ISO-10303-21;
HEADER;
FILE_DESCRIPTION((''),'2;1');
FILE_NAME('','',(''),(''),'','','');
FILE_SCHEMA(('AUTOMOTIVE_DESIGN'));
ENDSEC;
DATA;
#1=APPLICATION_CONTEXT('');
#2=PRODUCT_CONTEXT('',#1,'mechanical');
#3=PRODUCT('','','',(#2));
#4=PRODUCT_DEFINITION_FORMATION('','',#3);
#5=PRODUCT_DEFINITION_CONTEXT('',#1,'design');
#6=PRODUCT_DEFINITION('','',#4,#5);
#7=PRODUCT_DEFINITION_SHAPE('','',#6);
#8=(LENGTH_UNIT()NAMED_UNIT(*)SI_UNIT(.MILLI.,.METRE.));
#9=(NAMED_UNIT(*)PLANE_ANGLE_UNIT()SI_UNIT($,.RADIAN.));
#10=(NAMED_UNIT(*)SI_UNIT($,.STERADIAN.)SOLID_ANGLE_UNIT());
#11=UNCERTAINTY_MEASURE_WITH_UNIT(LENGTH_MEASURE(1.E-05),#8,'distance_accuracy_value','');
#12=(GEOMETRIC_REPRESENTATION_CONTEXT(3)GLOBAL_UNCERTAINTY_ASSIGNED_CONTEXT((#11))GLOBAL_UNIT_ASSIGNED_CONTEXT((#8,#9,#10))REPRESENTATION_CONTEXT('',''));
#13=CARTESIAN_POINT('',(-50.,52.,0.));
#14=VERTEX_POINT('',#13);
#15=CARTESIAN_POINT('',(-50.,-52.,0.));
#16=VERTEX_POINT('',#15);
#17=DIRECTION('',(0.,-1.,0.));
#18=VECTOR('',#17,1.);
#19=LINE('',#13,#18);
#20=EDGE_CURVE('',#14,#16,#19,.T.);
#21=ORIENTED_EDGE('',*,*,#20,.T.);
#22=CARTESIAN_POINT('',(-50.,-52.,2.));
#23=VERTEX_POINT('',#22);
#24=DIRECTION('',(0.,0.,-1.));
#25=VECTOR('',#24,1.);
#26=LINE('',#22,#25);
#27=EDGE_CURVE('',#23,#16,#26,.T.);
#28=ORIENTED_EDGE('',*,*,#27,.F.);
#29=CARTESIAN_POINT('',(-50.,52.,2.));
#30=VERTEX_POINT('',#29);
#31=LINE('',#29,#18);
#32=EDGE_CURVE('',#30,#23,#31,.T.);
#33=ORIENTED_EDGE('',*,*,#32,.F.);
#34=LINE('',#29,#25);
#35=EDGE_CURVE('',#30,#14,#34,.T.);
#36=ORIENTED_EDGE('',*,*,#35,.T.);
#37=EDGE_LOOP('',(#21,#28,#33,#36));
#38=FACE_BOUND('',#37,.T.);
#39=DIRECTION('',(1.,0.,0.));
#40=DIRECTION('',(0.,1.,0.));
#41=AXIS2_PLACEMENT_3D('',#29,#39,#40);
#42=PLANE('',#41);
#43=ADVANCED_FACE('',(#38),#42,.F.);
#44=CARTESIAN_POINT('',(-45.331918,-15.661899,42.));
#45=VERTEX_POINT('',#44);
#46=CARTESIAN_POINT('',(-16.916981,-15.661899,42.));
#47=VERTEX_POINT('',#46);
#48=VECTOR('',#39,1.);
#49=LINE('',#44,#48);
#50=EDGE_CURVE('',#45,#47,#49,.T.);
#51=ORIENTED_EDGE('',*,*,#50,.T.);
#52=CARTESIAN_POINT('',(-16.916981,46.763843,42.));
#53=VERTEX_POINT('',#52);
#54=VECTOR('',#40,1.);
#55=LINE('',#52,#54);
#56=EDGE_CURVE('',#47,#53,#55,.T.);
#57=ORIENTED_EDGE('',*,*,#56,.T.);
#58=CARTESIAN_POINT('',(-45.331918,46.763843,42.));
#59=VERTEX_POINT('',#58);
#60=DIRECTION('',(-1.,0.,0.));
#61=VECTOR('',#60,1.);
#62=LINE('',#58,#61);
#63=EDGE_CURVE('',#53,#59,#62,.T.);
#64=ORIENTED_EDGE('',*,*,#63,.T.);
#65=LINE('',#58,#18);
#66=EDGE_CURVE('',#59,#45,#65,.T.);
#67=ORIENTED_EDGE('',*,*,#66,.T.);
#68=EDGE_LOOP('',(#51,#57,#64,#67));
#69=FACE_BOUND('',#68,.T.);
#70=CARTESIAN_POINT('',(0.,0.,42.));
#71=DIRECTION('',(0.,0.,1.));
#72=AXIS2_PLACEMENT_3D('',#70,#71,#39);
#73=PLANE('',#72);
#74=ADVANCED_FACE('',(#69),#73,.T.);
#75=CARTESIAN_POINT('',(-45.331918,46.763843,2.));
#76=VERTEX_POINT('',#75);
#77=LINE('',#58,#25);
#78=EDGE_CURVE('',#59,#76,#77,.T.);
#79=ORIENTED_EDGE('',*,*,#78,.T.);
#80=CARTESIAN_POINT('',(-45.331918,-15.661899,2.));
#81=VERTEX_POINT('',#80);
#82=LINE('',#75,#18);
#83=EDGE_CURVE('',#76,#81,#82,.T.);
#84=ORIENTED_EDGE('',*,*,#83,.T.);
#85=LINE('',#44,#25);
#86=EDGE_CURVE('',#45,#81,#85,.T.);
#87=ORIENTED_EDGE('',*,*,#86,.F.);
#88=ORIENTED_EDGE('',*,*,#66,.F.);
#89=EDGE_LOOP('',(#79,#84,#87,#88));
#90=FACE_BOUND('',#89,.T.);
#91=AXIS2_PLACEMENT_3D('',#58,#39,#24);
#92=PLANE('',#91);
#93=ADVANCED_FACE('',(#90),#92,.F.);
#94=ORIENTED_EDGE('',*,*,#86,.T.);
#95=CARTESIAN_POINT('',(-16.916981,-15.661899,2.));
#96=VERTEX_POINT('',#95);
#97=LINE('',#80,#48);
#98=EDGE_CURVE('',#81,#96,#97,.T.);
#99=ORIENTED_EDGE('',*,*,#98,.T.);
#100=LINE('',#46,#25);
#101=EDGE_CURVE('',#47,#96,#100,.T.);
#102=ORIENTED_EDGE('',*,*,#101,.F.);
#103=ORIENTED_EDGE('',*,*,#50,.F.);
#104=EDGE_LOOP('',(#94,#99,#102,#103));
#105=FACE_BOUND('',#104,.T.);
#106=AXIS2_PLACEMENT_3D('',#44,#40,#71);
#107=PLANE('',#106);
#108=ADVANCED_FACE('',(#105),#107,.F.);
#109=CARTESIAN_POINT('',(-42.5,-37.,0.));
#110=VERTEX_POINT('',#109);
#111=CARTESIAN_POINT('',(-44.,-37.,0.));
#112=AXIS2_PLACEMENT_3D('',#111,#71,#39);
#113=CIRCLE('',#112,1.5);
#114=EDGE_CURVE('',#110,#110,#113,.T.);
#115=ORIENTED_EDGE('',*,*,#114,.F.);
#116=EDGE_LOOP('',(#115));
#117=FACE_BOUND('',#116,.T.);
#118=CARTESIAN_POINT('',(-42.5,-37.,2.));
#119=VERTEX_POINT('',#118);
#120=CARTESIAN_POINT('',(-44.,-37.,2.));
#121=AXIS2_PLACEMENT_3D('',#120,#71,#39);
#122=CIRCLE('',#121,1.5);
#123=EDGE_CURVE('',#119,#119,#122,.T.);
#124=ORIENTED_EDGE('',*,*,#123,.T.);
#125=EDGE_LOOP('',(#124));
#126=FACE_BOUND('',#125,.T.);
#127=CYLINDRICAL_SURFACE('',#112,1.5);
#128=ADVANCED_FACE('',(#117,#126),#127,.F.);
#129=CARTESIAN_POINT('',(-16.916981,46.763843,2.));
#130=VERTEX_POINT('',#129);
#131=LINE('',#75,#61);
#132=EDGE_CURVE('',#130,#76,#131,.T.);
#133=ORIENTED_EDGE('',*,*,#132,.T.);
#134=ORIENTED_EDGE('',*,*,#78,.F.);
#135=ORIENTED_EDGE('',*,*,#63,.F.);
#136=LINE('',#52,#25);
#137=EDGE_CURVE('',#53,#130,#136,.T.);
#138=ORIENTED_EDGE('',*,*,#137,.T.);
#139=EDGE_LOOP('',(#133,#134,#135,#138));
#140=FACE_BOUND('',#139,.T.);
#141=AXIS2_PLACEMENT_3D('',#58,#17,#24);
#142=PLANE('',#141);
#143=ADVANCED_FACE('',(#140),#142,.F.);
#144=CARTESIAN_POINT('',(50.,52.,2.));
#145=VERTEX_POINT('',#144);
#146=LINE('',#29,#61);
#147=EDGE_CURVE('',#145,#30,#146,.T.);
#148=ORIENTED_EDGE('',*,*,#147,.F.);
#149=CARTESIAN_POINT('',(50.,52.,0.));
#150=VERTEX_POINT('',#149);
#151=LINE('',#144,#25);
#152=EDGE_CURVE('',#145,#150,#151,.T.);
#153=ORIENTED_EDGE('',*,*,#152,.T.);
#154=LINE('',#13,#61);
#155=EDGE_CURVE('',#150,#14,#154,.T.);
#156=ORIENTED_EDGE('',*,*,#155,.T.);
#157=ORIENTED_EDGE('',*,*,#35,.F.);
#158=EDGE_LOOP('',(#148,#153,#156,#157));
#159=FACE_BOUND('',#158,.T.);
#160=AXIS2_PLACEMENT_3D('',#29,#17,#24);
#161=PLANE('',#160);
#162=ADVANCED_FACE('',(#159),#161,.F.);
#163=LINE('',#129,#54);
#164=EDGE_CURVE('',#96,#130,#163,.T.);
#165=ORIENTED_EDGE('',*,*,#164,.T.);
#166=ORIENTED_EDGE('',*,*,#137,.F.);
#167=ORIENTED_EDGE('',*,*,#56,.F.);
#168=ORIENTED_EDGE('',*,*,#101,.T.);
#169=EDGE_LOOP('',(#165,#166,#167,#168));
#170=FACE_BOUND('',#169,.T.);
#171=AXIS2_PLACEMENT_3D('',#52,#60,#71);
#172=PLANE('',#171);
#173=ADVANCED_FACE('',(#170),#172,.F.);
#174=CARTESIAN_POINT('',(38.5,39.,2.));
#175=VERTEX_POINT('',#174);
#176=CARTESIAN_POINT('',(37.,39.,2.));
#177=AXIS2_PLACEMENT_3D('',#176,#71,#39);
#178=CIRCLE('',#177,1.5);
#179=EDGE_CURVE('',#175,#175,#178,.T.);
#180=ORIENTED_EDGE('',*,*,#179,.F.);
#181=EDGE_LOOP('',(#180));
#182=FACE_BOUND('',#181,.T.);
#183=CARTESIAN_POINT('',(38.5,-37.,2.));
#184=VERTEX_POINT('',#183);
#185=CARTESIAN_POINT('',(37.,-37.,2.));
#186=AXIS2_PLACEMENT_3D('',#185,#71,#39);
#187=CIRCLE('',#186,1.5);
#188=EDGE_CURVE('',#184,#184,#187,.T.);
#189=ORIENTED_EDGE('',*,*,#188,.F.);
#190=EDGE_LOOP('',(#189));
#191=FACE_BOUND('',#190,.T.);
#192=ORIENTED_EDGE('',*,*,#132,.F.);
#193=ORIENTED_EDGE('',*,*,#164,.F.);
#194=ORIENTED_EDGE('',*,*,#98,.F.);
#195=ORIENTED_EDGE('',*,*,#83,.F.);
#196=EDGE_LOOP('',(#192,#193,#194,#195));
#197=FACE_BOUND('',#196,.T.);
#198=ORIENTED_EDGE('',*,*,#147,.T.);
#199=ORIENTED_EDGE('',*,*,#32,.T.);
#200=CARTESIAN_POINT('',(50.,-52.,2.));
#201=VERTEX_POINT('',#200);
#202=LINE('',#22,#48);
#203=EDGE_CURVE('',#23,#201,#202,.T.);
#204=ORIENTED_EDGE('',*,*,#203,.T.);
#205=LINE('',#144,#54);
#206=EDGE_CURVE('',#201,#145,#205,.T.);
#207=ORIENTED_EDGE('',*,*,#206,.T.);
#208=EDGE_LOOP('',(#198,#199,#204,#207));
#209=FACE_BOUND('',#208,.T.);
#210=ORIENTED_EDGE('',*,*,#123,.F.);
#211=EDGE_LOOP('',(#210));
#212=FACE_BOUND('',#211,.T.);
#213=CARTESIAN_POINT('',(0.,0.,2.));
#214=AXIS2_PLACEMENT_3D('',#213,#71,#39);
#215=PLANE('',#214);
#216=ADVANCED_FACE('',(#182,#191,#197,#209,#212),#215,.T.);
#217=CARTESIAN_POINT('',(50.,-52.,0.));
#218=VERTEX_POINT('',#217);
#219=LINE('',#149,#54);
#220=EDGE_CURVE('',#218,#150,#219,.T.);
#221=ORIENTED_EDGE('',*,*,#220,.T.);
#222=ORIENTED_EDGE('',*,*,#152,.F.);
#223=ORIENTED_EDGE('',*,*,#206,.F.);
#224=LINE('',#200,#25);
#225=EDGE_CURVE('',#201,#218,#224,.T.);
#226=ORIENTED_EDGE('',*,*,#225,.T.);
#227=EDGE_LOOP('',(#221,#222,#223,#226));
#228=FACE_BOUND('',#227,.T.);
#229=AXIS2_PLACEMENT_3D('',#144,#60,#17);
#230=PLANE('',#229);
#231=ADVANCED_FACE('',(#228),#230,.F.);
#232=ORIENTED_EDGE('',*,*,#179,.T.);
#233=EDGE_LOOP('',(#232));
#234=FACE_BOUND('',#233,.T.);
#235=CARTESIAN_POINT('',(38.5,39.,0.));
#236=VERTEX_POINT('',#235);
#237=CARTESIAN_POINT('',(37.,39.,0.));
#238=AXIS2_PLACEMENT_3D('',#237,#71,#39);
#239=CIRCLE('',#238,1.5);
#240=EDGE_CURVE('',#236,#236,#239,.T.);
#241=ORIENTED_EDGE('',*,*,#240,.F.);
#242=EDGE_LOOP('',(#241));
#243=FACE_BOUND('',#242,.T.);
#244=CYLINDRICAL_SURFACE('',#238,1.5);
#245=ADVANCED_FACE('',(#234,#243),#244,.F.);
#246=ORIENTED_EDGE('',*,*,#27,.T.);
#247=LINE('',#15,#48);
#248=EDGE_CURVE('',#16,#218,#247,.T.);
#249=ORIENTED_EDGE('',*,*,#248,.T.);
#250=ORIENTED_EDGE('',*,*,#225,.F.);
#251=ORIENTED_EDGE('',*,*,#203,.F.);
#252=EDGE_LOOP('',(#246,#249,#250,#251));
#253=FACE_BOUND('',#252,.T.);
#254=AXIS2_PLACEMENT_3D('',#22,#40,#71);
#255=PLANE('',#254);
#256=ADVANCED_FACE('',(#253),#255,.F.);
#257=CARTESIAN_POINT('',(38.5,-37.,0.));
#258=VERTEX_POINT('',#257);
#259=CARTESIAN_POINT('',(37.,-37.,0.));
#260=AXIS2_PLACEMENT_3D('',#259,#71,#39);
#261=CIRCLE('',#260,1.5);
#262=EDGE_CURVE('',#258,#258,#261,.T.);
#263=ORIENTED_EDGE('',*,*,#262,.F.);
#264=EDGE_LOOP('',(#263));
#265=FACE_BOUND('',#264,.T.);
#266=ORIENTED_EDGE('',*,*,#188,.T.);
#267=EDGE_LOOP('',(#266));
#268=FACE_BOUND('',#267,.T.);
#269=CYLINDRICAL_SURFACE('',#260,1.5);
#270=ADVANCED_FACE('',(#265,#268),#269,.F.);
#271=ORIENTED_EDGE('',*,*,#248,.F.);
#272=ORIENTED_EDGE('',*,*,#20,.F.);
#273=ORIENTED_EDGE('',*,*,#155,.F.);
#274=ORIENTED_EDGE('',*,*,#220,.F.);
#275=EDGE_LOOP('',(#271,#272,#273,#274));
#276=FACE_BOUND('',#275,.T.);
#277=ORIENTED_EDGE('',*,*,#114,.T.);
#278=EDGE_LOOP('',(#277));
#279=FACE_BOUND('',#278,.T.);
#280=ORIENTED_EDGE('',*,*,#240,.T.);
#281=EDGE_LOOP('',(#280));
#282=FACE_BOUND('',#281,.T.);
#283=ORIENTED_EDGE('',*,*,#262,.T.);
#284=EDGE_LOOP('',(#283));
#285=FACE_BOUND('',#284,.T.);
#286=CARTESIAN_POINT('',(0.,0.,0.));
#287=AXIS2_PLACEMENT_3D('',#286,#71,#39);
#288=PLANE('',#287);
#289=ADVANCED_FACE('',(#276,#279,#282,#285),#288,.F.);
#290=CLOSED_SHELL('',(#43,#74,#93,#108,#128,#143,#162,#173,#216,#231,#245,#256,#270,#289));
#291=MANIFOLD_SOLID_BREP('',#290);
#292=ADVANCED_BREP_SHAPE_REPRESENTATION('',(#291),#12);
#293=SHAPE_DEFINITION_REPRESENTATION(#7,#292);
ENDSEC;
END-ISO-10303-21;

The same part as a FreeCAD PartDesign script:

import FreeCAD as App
import Part
import Sketcher


def add_polygon(sketch, points):
    """Adds a closed chain of lines whose ends are joined by coincident constraints."""
    first, n = sketch.GeometryCount, len(points)
    for a, b in zip(points, points[1:] + points[:1]):
        sketch.addGeometry(Part.LineSegment(App.Vector(*a, 0), App.Vector(*b, 0)), False)
    for i in range(n):
        sketch.addConstraint(Sketcher.Constraint("Coincident", first + i, 2, first + (i + 1) % n, 1))

doc = App.newDocument("Part")
body = doc.addObject("PartDesign::Body", "Body")

sketch1 = body.newObject("Sketcher::SketchObject", "Sketch")
sketch1.AttachmentSupport = (doc.getObject("XY_Plane"), [""])
sketch1.MapMode = "FlatFace"
add_polygon(sketch1, [(-50, 52), (-50, -52), (50, -52), (50, 52)])
sketch1.addConstraint(Sketcher.Constraint("Vertical", 0))
sketch1.addConstraint(Sketcher.Constraint("Horizontal", 1))
sketch1.addConstraint(Sketcher.Constraint("Vertical", 2))
sketch1.addConstraint(Sketcher.Constraint("Horizontal", 3))
sketch1.addConstraint(Sketcher.Constraint("Symmetric", 0, 2, 2, 2, -1, 1))
sketch1.addConstraint(Sketcher.Constraint("DistanceX", 1, 1, 1, 2, 100.0))
sketch1.addConstraint(Sketcher.Constraint("DistanceY", 0, 2, 0, 1, 104.0))
pad1 = body.newObject("PartDesign::Pad", "Pad")
pad1.Profile = sketch1
pad1.Length = 2

sketch2 = body.newObject("Sketcher::SketchObject", "Sketch001")
sketch2.AttachmentSupport = (doc.getObject("XY_Plane"), [""])
sketch2.MapMode = "FlatFace"
sketch2.AttachmentOffset = App.Placement(App.Vector(0, 0, 2), App.Rotation())
sketch2.addGeometry(Part.Circle(App.Vector(-44, -37, 0), App.Vector(0, 0, 1), 1.5), False)
sketch2.addGeometry(Part.Circle(App.Vector(37, -37, 0), App.Vector(0, 0, 1), 1.5), False)
sketch2.addGeometry(Part.Circle(App.Vector(37, 39, 0), App.Vector(0, 0, 1), 1.5), False)
sketch2.addConstraint(Sketcher.Constraint("Equal", 0, 1))
sketch2.addConstraint(Sketcher.Constraint("Equal", 1, 2))
sketch2.addConstraint(Sketcher.Constraint("Horizontal", 0, 3, 1, 3))
sketch2.addConstraint(Sketcher.Constraint("Vertical", 1, 3, 2, 3))
sketch2.addConstraint(Sketcher.Constraint("Diameter", 0, 3.0))
sketch2.addConstraint(Sketcher.Constraint("DistanceX", 0, 3, -1, 1, 44.0))
sketch2.addConstraint(Sketcher.Constraint("DistanceY", 0, 3, -1, 1, 37.0))
sketch2.addConstraint(Sketcher.Constraint("DistanceX", -1, 1, 1, 3, 37.0))
sketch2.addConstraint(Sketcher.Constraint("DistanceY", -1, 1, 2, 3, 39.0))
pocket1 = body.newObject("PartDesign::Pocket", "Pocket")
pocket1.Profile = sketch2
pocket1.Length = 2

sketch3 = body.newObject("Sketcher::SketchObject", "Sketch002")
sketch3.AttachmentSupport = (doc.getObject("XY_Plane"), [""])
sketch3.MapMode = "FlatFace"
sketch3.AttachmentOffset = App.Placement(App.Vector(0, 0, 2), App.Rotation())
add_polygon(sketch3, [(-45.331918, 46.763843), (-45.331918, -15.661899), (-16.916981, -15.661899), (-16.916981, 46.763843)])
sketch3.addConstraint(Sketcher.Constraint("Vertical", 0))
sketch3.addConstraint(Sketcher.Constraint("Horizontal", 1))
sketch3.addConstraint(Sketcher.Constraint("Vertical", 2))
sketch3.addConstraint(Sketcher.Constraint("Horizontal", 3))
sketch3.addConstraint(Sketcher.Constraint("DistanceY", 0, 2, 0, 1, 62.425741))
sketch3.addConstraint(Sketcher.Constraint("DistanceY", 0, 2, -1, 1, 15.661899))
sketch3.addConstraint(Sketcher.Constraint("DistanceX", 1, 1, 1, 2, 28.414937))
sketch3.addConstraint(Sketcher.Constraint("DistanceX", 1, 2, -1, 1, 16.916981))
pad2 = body.newObject("PartDesign::Pad", "Pad001")
pad2.Profile = sketch3
pad2.Length = 40

doc.recompute()
